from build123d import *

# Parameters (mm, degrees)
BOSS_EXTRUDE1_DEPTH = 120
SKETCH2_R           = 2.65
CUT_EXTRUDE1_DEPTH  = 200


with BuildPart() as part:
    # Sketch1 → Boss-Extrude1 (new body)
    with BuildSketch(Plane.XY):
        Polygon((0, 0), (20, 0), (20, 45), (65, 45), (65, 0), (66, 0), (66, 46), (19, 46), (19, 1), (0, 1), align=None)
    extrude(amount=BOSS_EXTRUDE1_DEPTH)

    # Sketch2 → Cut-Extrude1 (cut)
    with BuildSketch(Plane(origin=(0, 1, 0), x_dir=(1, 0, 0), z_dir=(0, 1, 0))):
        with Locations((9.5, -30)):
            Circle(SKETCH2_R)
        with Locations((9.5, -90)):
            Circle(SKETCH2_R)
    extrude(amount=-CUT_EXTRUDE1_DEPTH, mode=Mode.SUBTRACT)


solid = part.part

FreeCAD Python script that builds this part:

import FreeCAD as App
import Part
import Sketcher
from FreeCAD import Vector


def add_polygon(sketch, points):
    """Adds a closed chain of lines whose ends are joined by coincident constraints."""
    first, n = sketch.GeometryCount, len(points)
    for a, b in zip(points, points[1:] + points[:1]):
        sketch.addGeometry(Part.LineSegment(App.Vector(*a, 0), App.Vector(*b, 0)), False)
    for i in range(n):
        sketch.addConstraint(Sketcher.Constraint("Coincident", first + i, 2, first + (i + 1) % n, 1))

doc = App.newDocument("Part")
params = doc.addObject("Spreadsheet::Sheet", "Params")
for row, (alias, value) in enumerate([
    ("sketch1_width", "20 mm"),
    ("sketch1_width2", "45 mm"),
    ("sketch1_width3", "1 mm"),
    ("sketch1_width4", "47 mm"),
    ("pad1_length", "120 mm"),
    ("sketch2_diameter", "5.3 mm"),
    ("pocket1_length", "200 mm"),
], start=1):
    params.set(f"A{row}", alias)
    params.set(f"B{row}", "=" + value)
    params.setAlias(f"B{row}", alias)

body = doc.addObject("PartDesign::Body", "Body")

# Sketch on XY plane
sketch1 = doc.addObject("Sketcher::SketchObject", "Sketch")
body.addObject(sketch1)
sketch1.AttachmentSupport = (doc.XY_Plane, [""])
sketch1.MapMode = "FlatFace"
add_polygon(sketch1, [(0, 0), (20, 0), (20, 45), (65, 45), (65, 0), (66, 0), (66, 46), (19, 46), (19, 1), (0, 1)])  # lines 0-9
sketch1.addConstraint(Sketcher.Constraint("Horizontal", 0))
sketch1.addConstraint(Sketcher.Constraint("Vertical", 1))
sketch1.addConstraint(Sketcher.Constraint("Horizontal", 2))
sketch1.addConstraint(Sketcher.Constraint("Vertical", 3))
sketch1.addConstraint(Sketcher.Constraint("Horizontal", 4))
sketch1.addConstraint(Sketcher.Constraint("Vertical", 5))
sketch1.addConstraint(Sketcher.Constraint("Horizontal", 6))
sketch1.addConstraint(Sketcher.Constraint("Vertical", 7))
sketch1.addConstraint(Sketcher.Constraint("Horizontal", 8))
sketch1.addConstraint(Sketcher.Constraint("Vertical", 9))
sketch1.addConstraint(Sketcher.Constraint("Coincident", 9, 2, -1, 1))
sketch1.addConstraint(Sketcher.Constraint("PointOnObject", 3, 2, -1))
sketch1.addConstraint(Sketcher.Constraint("Equal", 2, 1))
sketch1.addConstraint(Sketcher.Constraint("Equal", 3, 7))
sketch1.addConstraint(Sketcher.Constraint("Equal", 4, 9))
sketch1.addConstraint(Sketcher.Constraint("DistanceX", 0, 1, 0, 2, 20.0))
sketch1.addConstraint(Sketcher.Constraint("DistanceX", 2, 1, 2, 2, 45.0))
sketch1.addConstraint(Sketcher.Constraint("DistanceX", 4, 1, 4, 2, 1.0))
sketch1.addConstraint(Sketcher.Constraint("DistanceX", 6, 2, 6, 1, 47.0))
sketch1.setExpression("Constraints[25]", "Params.sketch1_width")
sketch1.setExpression("Constraints[26]", "Params.sketch1_width2")
sketch1.setExpression("Constraints[27]", "Params.sketch1_width3")
sketch1.setExpression("Constraints[28]", "Params.sketch1_width4")
pad1 = doc.addObject("PartDesign::Pad", "Pad")
body.addObject(pad1)
pad1.Profile = sketch1
pad1.setExpression("Length", "Params.pad1_length")

# Sketch on XZ plane
sketch2 = doc.addObject("Sketcher::SketchObject", "Sketch001")
body.addObject(sketch2)
sketch2.AttachmentSupport = (doc.XZ_Plane, [""])
sketch2.MapMode = "FlatFace"
sketch2.AttachmentOffset = App.Placement(Vector(0, 0, -1), App.Rotation())
sketch2.addGeometry(Part.Circle(Vector(9.5, 30, 0), Vector(0, 0, 1), 2.6), False)
sketch2.addGeometry(Part.Circle(Vector(9.5, 90, 0), Vector(0, 0, 1), 2.6), False)
sketch2.addConstraint(Sketcher.Constraint("Equal", 0, 1))
sketch2.addConstraint(Sketcher.Constraint("Vertical", 0, 3, 1, 3))
sketch2.addConstraint(Sketcher.Constraint("Diameter", 0, 5.3))
sketch2.addConstraint(Sketcher.Constraint("DistanceY", -1, 1, 0, 3, 30.0))
sketch2.addConstraint(Sketcher.Constraint("DistanceY", -1, 1, 1, 3, 90.0))
sketch2.addConstraint(Sketcher.Constraint("DistanceX", -1, 1, 0, 3, 9.5))
sketch2.setExpression("Constraints[2]", "Params.sketch2_diameter")
pocket1 = doc.addObject("PartDesign::Pocket", "Pocket")
body.addObject(pocket1)
pocket1.Profile = sketch2
pocket1.setExpression("Length", "Params.pocket1_length")
pocket1.Reversed = True

doc.recompute()
